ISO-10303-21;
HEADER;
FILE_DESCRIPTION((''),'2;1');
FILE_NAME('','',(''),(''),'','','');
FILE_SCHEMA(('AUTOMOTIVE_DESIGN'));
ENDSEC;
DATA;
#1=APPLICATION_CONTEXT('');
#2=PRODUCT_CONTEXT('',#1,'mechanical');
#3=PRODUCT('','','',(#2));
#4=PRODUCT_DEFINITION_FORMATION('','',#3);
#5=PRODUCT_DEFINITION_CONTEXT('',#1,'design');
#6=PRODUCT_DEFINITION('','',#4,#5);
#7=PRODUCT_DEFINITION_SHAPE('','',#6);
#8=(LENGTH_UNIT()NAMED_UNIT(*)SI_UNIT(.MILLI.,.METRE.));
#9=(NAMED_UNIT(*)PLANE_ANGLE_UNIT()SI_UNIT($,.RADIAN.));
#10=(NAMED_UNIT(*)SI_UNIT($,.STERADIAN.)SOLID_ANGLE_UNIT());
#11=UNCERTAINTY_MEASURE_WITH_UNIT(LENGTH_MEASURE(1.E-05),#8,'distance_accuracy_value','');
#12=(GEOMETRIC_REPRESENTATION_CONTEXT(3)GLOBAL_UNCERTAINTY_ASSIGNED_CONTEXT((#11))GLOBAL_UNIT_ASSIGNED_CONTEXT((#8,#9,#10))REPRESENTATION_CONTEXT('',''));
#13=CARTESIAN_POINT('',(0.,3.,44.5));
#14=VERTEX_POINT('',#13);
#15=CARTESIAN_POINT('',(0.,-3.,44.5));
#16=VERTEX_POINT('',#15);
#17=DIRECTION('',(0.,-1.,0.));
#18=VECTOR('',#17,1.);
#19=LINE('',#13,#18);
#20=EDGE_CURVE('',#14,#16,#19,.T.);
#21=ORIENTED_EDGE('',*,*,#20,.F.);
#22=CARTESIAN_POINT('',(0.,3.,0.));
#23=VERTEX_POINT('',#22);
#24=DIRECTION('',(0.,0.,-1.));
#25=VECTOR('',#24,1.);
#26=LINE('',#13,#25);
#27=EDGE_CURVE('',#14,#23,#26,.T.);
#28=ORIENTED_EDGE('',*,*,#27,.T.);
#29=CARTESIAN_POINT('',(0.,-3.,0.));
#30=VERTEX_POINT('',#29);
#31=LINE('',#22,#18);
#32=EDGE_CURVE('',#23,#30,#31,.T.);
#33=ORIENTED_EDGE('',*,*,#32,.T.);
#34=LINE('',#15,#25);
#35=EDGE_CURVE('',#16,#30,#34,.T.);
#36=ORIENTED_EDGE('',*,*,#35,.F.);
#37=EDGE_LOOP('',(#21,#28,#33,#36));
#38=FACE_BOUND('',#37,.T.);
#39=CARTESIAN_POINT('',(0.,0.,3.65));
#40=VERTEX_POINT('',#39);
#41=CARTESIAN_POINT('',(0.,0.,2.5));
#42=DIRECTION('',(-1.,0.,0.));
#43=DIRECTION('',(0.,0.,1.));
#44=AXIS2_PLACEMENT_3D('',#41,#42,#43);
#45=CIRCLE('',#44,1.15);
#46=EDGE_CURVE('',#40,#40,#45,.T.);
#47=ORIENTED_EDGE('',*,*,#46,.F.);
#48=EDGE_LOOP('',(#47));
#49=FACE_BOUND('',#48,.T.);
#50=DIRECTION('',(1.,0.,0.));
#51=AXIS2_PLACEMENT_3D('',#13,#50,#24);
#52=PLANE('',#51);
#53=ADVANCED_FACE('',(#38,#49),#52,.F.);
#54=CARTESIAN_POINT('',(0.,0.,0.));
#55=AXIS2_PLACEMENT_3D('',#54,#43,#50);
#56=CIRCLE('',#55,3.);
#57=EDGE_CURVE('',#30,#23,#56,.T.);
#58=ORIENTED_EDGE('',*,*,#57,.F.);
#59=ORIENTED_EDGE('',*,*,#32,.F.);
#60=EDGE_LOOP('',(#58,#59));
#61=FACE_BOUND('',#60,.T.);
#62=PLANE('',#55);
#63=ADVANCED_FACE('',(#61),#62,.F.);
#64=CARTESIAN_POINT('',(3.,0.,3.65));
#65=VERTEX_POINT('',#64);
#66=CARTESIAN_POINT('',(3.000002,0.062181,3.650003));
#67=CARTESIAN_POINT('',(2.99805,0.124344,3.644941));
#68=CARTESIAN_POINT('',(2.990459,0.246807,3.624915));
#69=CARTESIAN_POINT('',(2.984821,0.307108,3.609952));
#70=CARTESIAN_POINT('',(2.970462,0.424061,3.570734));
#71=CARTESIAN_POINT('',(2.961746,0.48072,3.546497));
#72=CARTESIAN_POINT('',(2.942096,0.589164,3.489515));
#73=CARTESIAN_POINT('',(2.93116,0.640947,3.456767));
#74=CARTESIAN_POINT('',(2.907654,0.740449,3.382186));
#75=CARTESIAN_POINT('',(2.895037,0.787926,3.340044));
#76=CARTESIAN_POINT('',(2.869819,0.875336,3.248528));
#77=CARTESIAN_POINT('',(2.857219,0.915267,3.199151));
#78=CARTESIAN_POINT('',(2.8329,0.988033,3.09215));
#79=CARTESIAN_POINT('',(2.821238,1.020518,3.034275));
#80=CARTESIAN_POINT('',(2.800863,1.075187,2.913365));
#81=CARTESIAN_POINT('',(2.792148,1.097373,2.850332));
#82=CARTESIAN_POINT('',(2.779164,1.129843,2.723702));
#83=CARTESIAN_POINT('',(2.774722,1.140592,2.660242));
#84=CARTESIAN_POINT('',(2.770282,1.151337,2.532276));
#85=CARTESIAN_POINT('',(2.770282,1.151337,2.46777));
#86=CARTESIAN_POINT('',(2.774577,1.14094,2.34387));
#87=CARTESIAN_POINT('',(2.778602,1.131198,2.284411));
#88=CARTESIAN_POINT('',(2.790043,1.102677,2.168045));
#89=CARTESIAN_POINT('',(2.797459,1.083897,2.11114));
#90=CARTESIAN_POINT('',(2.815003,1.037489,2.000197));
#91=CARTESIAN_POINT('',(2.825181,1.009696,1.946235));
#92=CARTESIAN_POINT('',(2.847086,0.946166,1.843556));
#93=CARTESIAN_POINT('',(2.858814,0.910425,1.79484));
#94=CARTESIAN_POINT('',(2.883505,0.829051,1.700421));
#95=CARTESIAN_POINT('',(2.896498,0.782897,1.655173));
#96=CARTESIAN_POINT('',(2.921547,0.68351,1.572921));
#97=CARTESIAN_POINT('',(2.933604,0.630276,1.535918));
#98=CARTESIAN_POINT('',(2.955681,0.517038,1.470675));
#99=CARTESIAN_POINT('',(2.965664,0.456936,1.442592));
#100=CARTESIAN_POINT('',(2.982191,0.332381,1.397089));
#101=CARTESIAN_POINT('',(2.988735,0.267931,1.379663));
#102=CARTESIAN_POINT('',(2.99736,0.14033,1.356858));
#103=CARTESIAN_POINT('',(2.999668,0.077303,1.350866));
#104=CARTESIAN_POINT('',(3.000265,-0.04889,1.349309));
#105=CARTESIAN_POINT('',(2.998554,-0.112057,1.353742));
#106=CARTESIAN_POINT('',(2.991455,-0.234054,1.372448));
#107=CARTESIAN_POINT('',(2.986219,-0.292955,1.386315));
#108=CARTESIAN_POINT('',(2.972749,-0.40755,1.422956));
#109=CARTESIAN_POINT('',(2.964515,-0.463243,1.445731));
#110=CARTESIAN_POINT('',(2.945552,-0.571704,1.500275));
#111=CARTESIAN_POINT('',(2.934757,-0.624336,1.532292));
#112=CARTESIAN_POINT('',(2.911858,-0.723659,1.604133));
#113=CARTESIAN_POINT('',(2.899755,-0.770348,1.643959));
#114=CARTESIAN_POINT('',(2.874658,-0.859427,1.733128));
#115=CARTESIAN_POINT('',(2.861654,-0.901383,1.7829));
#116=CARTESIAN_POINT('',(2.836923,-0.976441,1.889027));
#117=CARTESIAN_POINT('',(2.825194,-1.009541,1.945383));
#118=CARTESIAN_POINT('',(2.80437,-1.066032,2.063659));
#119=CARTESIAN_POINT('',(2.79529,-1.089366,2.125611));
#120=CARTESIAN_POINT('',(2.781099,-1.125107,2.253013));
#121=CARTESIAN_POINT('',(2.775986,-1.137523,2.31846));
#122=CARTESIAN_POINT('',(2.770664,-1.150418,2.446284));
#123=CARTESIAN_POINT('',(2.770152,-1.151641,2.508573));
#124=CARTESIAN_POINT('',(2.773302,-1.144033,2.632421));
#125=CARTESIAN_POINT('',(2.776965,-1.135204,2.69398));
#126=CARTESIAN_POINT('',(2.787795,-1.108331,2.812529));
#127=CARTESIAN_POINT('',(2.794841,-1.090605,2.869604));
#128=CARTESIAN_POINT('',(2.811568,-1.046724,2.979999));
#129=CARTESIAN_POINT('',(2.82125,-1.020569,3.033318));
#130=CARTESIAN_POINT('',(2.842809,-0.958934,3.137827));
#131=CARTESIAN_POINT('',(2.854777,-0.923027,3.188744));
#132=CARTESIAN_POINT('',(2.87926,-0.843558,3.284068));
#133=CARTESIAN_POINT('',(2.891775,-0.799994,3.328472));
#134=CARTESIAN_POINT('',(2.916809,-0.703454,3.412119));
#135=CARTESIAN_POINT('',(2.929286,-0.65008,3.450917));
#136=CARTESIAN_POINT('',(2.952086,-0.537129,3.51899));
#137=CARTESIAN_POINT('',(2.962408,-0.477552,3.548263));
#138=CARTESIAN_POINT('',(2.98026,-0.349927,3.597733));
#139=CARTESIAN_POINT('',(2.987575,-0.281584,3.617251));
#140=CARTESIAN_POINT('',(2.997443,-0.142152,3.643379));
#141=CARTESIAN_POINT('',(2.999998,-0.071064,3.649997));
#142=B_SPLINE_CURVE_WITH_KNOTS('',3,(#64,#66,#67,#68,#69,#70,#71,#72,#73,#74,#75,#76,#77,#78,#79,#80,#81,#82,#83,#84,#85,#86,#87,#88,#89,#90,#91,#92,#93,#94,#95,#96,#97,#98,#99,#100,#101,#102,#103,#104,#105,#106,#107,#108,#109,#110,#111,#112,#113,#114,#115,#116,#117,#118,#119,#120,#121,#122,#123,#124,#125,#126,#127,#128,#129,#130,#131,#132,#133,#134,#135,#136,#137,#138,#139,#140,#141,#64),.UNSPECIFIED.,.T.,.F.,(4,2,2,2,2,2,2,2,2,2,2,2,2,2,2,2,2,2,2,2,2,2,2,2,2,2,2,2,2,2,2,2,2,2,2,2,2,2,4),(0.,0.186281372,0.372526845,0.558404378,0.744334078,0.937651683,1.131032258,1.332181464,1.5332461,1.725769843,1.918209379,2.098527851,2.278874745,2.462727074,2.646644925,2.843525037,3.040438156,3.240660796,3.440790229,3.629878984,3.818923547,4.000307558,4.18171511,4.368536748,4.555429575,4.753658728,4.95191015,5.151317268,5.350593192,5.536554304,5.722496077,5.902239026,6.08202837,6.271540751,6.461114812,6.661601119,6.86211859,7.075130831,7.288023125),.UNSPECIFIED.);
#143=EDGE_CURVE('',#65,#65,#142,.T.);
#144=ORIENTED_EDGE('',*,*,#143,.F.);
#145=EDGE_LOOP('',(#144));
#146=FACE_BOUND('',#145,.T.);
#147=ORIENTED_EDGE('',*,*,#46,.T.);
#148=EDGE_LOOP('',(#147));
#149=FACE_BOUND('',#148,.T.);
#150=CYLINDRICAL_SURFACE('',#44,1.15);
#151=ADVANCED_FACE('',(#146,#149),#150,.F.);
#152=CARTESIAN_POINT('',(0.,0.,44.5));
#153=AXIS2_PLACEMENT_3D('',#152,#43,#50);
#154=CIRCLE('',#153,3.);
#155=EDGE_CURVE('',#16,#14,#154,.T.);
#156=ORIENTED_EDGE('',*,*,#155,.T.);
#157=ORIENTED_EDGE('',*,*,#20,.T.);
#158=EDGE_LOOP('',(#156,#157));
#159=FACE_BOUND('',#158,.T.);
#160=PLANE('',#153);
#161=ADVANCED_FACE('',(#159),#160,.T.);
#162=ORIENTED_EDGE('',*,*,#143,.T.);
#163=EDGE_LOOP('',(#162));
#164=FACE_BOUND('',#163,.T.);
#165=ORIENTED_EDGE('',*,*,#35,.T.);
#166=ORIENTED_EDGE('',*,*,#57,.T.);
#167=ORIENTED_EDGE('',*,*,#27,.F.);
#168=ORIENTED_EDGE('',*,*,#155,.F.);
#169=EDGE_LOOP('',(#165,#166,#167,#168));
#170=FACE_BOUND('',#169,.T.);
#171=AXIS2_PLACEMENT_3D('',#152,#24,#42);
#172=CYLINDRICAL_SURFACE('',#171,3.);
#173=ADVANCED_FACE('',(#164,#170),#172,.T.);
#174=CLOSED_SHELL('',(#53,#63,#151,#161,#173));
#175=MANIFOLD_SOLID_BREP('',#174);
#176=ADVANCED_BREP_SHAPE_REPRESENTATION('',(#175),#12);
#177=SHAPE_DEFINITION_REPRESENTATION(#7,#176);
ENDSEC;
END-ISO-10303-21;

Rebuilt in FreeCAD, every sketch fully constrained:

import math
import FreeCAD as App
import Part
import Sketcher
from FreeCAD import Vector
Q = App.Units.Quantity

doc = App.newDocument("Part")
body = doc.addObject("PartDesign::Body", "Body")

sketch1 = body.newObject("Sketcher::SketchObject", "Sketch")
sketch1.AttachmentSupport = (doc.getObject("XY_Plane"), [""])
sketch1.MapMode = "FlatFace"
sketch1.addGeometry(Part.LineSegment(Vector(0, 3, 0), Vector(0, -3, 0)), False)
sketch1.addGeometry(Part.ArcOfCircle(Part.Circle(Vector(0, 0, 0), Vector(0, 0, 1), 3), math.radians(-90), math.radians(90)), False)
sketch1.addConstraint(Sketcher.Constraint("Coincident", 0, 1, 1, 2))
sketch1.addConstraint(Sketcher.Constraint("Coincident", 1, 1, 0, 2))
sketch1.addConstraint(Sketcher.Constraint("Vertical", 0))
sketch1.addConstraint(Sketcher.Constraint("Coincident", 1, 3, -1, 1))
sketch1.addConstraint(Sketcher.Constraint("PointOnObject", 0, 1, -2))
sketch1.addConstraint(Sketcher.Constraint("Radius", 1, Q("3 mm")))
pad1 = body.newObject("PartDesign::Pad", "Pad")
pad1.Profile = sketch1
pad1.Length = 44.5

sketch2 = body.newObject("Sketcher::SketchObject", "Sketch001")
sketch2.AttachmentSupport = (doc.getObject("YZ_Plane"), [""])
sketch2.MapMode = "FlatFace"
sketch2.addGeometry(Part.Circle(Vector(0, 2.5, 0), Vector(0, 0, 1), 1.1), False)
sketch2.addConstraint(Sketcher.Constraint("PointOnObject", 0, 3, -2))
sketch2.addConstraint(Sketcher.Constraint("Diameter", 0, Q("2.3 mm")))
sketch2.addConstraint(Sketcher.Constraint("DistanceY", -1, 1, 0, 3, Q("2.5 mm")))
doc.recompute()
hole = body.newObject("PartDesign::Hole", "Hole")
hole.Profile = sketch2
hole.ThreadType = "None"
hole.Diameter = 2.3
hole.DepthType = "ThroughAll"
hole.Reversed = True

doc.recompute()
